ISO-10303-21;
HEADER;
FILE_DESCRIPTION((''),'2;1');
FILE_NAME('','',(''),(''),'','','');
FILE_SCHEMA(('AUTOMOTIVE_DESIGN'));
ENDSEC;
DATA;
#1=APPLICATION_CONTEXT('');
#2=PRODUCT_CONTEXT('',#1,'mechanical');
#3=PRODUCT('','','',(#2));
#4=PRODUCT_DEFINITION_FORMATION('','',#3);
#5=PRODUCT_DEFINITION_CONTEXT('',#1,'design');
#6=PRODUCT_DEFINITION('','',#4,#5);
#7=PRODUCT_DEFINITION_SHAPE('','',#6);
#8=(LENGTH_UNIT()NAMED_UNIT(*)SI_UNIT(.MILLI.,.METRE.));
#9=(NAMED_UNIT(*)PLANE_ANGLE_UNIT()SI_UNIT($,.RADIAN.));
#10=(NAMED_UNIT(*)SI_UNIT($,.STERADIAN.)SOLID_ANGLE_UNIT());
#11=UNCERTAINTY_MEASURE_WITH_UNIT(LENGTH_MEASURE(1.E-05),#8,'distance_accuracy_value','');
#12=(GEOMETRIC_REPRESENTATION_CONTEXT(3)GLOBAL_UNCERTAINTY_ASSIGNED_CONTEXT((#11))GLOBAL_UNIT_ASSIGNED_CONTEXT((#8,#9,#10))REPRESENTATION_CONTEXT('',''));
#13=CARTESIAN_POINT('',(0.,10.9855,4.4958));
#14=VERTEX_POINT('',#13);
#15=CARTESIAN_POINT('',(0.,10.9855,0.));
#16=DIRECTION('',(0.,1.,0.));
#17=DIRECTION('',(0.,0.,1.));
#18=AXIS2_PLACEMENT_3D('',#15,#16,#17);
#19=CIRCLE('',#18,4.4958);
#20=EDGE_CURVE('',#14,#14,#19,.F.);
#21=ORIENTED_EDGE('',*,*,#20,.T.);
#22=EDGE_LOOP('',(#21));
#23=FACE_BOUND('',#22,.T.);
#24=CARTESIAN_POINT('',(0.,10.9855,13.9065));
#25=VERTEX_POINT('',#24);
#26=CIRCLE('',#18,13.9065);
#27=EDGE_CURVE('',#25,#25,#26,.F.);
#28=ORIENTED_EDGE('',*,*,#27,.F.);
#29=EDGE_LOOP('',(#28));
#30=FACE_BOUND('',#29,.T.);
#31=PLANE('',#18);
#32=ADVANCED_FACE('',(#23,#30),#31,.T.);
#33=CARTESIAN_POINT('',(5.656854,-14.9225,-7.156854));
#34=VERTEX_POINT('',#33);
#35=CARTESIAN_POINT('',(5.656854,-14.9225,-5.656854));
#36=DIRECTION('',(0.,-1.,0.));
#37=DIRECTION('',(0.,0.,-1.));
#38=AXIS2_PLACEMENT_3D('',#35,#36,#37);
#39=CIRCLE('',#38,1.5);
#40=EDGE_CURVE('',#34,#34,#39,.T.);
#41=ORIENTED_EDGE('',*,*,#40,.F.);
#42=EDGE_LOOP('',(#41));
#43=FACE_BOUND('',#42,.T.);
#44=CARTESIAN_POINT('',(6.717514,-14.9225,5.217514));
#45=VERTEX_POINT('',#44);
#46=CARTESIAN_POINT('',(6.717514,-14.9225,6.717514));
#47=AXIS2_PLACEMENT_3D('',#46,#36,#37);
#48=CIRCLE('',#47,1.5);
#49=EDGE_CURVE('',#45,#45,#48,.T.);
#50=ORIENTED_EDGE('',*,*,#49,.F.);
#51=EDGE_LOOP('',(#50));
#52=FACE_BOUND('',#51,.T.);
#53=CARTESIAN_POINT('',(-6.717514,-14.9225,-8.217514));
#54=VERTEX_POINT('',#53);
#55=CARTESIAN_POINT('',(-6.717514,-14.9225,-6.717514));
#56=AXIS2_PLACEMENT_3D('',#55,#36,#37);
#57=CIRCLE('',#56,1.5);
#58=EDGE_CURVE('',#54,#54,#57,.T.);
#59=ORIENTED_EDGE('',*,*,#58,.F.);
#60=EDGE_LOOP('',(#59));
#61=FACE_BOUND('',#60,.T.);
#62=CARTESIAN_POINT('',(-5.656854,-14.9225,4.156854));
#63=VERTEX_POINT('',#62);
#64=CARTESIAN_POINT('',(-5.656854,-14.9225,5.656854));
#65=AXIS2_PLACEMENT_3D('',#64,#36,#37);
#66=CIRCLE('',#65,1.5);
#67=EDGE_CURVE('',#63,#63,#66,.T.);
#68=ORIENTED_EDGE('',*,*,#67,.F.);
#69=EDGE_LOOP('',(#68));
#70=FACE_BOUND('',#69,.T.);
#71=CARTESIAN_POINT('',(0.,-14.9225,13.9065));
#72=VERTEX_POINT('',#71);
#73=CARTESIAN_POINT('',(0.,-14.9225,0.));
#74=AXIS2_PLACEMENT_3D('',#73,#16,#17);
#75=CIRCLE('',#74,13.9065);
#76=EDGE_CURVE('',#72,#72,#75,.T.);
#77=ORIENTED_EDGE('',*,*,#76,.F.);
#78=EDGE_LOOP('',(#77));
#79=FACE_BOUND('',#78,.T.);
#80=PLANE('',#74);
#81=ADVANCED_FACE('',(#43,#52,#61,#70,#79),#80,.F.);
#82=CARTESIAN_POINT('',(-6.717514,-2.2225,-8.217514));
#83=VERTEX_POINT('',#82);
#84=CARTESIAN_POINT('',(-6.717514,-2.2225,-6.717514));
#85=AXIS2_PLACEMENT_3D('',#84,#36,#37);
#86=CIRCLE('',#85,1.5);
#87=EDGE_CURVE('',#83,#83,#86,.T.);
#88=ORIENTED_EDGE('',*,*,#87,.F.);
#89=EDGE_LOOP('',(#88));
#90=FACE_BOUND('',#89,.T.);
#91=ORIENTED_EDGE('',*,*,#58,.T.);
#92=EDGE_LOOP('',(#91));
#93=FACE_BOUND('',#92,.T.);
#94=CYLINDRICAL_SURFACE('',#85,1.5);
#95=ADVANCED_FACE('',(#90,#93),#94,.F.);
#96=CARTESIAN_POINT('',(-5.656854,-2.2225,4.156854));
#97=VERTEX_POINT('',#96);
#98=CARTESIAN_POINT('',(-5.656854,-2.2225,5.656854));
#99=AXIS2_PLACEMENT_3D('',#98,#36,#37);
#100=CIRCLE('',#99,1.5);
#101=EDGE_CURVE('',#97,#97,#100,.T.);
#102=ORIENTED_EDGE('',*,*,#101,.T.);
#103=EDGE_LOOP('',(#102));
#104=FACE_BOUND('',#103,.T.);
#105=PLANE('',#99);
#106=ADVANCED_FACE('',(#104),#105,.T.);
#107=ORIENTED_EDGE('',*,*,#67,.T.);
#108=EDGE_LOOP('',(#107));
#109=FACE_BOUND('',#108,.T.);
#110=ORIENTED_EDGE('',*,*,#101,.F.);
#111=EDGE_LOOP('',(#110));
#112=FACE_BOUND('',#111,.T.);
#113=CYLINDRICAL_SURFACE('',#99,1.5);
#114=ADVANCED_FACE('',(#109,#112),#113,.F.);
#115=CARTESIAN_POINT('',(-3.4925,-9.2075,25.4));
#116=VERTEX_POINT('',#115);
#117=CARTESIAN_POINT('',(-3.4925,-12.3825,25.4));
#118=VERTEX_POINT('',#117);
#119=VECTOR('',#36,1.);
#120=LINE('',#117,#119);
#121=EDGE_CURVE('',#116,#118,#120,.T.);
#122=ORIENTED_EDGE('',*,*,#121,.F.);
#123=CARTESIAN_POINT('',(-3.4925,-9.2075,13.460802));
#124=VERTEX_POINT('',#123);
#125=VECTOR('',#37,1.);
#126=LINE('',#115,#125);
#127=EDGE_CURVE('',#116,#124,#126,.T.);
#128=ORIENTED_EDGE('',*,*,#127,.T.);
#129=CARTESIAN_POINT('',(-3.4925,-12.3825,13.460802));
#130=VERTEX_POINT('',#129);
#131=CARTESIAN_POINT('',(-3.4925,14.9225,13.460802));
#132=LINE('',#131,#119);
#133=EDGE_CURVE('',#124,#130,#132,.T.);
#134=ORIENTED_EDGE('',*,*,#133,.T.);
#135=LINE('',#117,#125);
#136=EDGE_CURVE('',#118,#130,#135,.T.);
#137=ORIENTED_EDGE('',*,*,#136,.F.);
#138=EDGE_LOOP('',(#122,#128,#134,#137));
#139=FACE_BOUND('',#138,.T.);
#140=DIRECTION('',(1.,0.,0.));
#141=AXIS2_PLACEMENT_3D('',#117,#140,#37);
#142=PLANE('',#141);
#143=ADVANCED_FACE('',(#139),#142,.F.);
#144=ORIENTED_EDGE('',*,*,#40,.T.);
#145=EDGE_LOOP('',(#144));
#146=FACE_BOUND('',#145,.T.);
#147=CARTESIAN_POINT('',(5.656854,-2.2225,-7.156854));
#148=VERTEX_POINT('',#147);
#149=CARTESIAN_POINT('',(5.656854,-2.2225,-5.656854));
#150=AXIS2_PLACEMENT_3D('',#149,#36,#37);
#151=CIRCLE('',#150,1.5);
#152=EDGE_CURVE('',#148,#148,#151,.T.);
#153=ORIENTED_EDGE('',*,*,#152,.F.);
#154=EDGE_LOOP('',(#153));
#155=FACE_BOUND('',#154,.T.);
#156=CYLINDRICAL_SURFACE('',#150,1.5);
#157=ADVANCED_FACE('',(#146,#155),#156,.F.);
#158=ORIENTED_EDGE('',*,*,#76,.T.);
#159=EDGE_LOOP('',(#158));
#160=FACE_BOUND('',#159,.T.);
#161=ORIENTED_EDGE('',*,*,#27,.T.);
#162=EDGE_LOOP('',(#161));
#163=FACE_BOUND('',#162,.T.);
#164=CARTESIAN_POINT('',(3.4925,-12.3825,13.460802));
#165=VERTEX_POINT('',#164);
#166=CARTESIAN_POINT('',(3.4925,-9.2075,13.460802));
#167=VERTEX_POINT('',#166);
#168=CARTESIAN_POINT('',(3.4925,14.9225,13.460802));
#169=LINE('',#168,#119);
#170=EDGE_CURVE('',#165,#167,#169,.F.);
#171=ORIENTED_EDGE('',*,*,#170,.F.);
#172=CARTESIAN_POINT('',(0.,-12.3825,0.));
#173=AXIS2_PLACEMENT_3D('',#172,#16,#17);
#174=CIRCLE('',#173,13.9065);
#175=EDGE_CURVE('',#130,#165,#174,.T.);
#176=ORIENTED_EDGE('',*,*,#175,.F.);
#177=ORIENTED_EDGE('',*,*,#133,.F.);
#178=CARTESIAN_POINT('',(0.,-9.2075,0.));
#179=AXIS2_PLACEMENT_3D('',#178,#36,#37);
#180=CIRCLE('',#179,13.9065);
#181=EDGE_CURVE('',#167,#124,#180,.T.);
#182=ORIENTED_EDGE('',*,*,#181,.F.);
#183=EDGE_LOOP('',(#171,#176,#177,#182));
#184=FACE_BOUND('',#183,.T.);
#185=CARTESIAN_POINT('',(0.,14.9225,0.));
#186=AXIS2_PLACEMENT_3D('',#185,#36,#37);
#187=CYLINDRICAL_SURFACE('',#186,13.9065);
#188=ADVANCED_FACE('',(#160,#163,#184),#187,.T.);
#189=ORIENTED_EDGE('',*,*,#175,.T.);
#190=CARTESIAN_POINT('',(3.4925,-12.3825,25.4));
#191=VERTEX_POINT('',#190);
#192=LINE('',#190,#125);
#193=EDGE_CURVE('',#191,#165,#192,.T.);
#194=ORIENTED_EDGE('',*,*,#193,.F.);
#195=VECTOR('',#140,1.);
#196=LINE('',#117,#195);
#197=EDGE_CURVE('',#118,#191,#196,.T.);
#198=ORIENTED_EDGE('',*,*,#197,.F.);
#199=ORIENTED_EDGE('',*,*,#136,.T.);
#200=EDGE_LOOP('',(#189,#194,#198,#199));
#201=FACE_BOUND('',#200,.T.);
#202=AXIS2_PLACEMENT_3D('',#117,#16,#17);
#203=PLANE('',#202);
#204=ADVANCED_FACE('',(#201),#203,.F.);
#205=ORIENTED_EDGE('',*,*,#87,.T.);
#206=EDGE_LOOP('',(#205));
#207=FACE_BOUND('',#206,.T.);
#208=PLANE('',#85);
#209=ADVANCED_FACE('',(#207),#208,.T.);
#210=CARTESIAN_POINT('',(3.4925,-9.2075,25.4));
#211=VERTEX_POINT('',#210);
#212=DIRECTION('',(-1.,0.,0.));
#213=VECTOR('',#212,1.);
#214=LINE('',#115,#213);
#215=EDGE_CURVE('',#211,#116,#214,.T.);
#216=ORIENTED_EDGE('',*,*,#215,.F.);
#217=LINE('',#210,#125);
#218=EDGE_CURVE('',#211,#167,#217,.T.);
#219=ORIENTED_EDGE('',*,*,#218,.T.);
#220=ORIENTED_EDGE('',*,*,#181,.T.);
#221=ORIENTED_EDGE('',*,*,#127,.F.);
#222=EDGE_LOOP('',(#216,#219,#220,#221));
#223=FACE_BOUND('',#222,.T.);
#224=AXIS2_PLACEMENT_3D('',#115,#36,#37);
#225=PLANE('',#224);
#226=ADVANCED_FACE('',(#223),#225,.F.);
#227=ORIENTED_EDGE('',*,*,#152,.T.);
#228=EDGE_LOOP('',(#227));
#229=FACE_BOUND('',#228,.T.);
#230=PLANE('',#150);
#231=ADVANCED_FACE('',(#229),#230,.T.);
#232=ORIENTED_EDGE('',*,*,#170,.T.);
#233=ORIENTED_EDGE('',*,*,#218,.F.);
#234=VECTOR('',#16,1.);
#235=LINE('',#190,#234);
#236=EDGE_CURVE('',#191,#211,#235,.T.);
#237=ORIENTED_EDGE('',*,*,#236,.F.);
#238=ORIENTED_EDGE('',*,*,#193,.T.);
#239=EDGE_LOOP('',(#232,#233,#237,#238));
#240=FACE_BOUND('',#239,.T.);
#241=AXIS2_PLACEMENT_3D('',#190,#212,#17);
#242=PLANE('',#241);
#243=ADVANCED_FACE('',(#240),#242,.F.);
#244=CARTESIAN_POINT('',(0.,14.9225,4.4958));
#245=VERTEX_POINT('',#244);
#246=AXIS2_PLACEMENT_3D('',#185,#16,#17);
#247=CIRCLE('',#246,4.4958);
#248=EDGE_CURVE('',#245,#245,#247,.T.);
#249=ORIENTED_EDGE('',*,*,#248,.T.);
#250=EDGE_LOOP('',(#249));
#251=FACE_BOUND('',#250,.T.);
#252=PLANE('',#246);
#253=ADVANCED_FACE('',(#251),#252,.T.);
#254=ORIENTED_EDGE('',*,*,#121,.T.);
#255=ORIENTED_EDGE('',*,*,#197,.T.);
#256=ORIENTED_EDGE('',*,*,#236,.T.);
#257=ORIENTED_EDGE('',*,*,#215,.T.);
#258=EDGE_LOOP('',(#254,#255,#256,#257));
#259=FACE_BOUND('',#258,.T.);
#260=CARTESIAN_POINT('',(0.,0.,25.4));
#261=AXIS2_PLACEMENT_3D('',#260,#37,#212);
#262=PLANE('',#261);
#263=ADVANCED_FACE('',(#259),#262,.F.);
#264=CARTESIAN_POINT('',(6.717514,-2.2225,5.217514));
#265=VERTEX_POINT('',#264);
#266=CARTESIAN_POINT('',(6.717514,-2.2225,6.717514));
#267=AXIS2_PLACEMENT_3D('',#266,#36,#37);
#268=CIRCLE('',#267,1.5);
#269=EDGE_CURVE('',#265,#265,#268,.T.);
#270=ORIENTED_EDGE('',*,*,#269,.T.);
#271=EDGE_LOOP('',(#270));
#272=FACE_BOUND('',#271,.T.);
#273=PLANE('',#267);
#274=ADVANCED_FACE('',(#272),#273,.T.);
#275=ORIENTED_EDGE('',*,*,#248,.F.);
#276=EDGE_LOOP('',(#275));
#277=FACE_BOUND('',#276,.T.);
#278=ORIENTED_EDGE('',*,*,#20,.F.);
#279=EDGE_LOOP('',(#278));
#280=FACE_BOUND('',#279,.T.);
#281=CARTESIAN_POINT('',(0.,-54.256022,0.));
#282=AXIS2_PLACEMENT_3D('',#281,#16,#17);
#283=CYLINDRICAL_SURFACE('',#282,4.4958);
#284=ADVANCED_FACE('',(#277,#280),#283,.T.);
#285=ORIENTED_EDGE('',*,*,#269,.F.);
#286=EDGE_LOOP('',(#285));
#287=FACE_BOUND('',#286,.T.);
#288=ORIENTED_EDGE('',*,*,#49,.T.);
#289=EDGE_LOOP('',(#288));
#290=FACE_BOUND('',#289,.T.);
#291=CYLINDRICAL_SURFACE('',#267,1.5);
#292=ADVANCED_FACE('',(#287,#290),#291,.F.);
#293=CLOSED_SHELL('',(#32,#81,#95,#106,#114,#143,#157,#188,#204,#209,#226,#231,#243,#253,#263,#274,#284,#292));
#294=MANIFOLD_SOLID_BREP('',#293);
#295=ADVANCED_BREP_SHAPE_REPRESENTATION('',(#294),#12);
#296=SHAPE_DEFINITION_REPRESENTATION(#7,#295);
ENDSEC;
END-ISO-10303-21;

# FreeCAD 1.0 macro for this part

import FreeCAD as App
import Part
import Sketcher
from FreeCAD import Vector
Q = App.Units.Quantity

doc = App.newDocument("Part")
params = doc.addObject("Spreadsheet::Sheet", "Params")
for row, (alias, value) in enumerate([
    ("sketch1_diameter", "1.095 in"),
    ("pad1_length", "1.175 in"),
    ("sketch2_diameter", "1.095 in"),
    ("sketch2_diameter2", "0.354 in"),
    ("pocket1_length", "0.155 in"),
    ("sketch3_width", "0.275 in"),
    ("sketch3_height", "0.125 in"),
    ("pad2_length", "1 in"),
    ("pocket2_length", "0.5 in"),
], start=1):
    params.set(f"A{row}", alias)
    params.set(f"B{row}", "=" + value)
    params.setAlias(f"B{row}", alias)

body = doc.addObject("PartDesign::Body", "Body")

# Sketch on XZ plane
sketch1 = body.newObject("Sketcher::SketchObject", "Sketch")
sketch1.AttachmentSupport = (doc.getObject("XZ_Plane"), [""])
sketch1.MapMode = "FlatFace"
sketch1.addGeometry(Part.Circle(Vector(0, 0, 0), Vector(0, 0, 1), 14), False)
sketch1.addConstraint([
    Sketcher.Constraint("Coincident", 0, 3, -1, 1),
    Sketcher.Constraint("Diameter", 0, Q("1.095 in")),
])
sketch1.setExpression("Constraints[1]", "Params.sketch1_diameter")
pad1 = body.newObject("PartDesign::Pad", "Pad")
pad1.Profile = sketch1
pad1.setExpression("Length", "Params.pad1_length")
pad1.Midplane = True

# Sketch on XZ plane
sketch2 = body.newObject("Sketcher::SketchObject", "Sketch001")
sketch2.AttachmentSupport = (doc.getObject("XZ_Plane"), [""])
sketch2.MapMode = "FlatFace"
sketch2.AttachmentOffset = App.Placement(Vector(0, 0, -0.5875 * 25.4), App.Rotation())
sketch2.addGeometry([
    Part.Circle(Vector(0, 0, 0), Vector(0, 0, 1), 13.9),
    Part.Circle(Vector(0, 0, 0), Vector(0, 0, 1), 4.5),
], False)
sketch2.addConstraint([
    Sketcher.Constraint("Coincident", 0, 3, -1, 1),
    Sketcher.Constraint("Coincident", 1, 3, -1, 1),
    Sketcher.Constraint("Diameter", 0, Q("1.095 in")),
    Sketcher.Constraint("Diameter", 1, Q("0.354 in")),
])
sketch2.setExpression("Constraints[2]", "Params.sketch2_diameter")
sketch2.setExpression("Constraints[3]", "Params.sketch2_diameter2")
pocket1 = body.newObject("PartDesign::Pocket", "Pocket")
pocket1.Profile = sketch2
pocket1.setExpression("Length", "Params.pocket1_length")
pocket1.Reversed = True

# Sketch on XY plane
sketch3 = body.newObject("Sketcher::SketchObject", "Sketch002")
sketch3.AttachmentSupport = (doc.getObject("XY_Plane"), [""])
sketch3.MapMode = "FlatFace"
sketch3.addGeometry([
    Part.LineSegment(Vector(-3.5, -9.2, 0), Vector(-3.5, -12.4, 0)),
    Part.LineSegment(Vector(-3.5, -12.4, 0), Vector(3.5, -12.4, 0)),
    Part.LineSegment(Vector(3.5, -12.4, 0), Vector(3.5, -9.2, 0)),
    Part.LineSegment(Vector(3.5, -9.2, 0), Vector(-3.5, -9.2, 0)),
], False)
sketch3.addConstraint([
    Sketcher.Constraint("Coincident", 0, 2, 1, 1),
    Sketcher.Constraint("Coincident", 1, 2, 2, 1),
    Sketcher.Constraint("Coincident", 2, 2, 3, 1),
    Sketcher.Constraint("Coincident", 3, 2, 0, 1),
    Sketcher.Constraint("Vertical", 0),
    Sketcher.Constraint("Horizontal", 1),
    Sketcher.Constraint("Vertical", 2),
    Sketcher.Constraint("Horizontal", 3),
    Sketcher.Constraint("DistanceX", 1, 1, 1, 2, Q("0.275 in")),
    Sketcher.Constraint("DistanceY", 0, 2, 0, 1, Q("0.125 in")),
    Sketcher.Constraint("DistanceX", 0, 2, -1, 1, Q("0.1375 in")),
    Sketcher.Constraint("DistanceY", 0, 2, -1, 1, Q("0.4875 in")),
])
sketch3.setExpression("Constraints[8]", "Params.sketch3_width")
sketch3.setExpression("Constraints[9]", "Params.sketch3_height")
pad2 = body.newObject("PartDesign::Pad", "Pad001")
pad2.Profile = sketch3
pad2.setExpression("Length", "Params.pad2_length")

# Sketch on XZ plane
sketch4 = body.newObject("Sketcher::SketchObject", "Sketch003")
sketch4.AttachmentSupport = (doc.getObject("XZ_Plane"), [""])
sketch4.MapMode = "FlatFace"
sketch4.AttachmentOffset = App.Placement(Vector(0, 0, 0.5875 * 25.4), App.Rotation())
sketch4.addGeometry([
    Part.Circle(Vector(-5.7, 5.7, 0), Vector(0, 0, 1), 1.5),
    Part.Circle(Vector(6.7, 6.7, 0), Vector(0, 0, 1), 1.5),
    Part.Circle(Vector(5.7, -5.7, 0), Vector(0, 0, 1), 1.5),
    Part.Circle(Vector(-6.7, -6.7, 0), Vector(0, 0, 1), 1.5),
], False)
sketch4.addConstraint([
    Sketcher.Constraint("Equal", 0, 1),
    Sketcher.Constraint("Equal", 1, 2),
    Sketcher.Constraint("Equal", 2, 3),
    Sketcher.Constraint("Symmetric", 0, 3, 2, 3, -1, 1),
    Sketcher.Constraint("Symmetric", 1, 3, 3, 3, -1, 1),
    Sketcher.Constraint("Diameter", 0, Q("3 mm")),
    Sketcher.Constraint("DistanceX", 0, 3, 1, 3, Q("12.374369 mm")),
    Sketcher.Constraint("DistanceY", 0, 3, 1, 3, Q("1.06066 mm")),
    Sketcher.Constraint("DistanceX", 2, 3, 1, 3, Q("1.06066 mm")),
    Sketcher.Constraint("DistanceY", 2, 3, 1, 3, Q("12.374369 mm")),
])
pocket2 = body.newObject("PartDesign::Pocket", "Pocket001")
pocket2.Profile = sketch4
pocket2.setExpression("Length", "Params.pocket2_length")

doc.recompute()
